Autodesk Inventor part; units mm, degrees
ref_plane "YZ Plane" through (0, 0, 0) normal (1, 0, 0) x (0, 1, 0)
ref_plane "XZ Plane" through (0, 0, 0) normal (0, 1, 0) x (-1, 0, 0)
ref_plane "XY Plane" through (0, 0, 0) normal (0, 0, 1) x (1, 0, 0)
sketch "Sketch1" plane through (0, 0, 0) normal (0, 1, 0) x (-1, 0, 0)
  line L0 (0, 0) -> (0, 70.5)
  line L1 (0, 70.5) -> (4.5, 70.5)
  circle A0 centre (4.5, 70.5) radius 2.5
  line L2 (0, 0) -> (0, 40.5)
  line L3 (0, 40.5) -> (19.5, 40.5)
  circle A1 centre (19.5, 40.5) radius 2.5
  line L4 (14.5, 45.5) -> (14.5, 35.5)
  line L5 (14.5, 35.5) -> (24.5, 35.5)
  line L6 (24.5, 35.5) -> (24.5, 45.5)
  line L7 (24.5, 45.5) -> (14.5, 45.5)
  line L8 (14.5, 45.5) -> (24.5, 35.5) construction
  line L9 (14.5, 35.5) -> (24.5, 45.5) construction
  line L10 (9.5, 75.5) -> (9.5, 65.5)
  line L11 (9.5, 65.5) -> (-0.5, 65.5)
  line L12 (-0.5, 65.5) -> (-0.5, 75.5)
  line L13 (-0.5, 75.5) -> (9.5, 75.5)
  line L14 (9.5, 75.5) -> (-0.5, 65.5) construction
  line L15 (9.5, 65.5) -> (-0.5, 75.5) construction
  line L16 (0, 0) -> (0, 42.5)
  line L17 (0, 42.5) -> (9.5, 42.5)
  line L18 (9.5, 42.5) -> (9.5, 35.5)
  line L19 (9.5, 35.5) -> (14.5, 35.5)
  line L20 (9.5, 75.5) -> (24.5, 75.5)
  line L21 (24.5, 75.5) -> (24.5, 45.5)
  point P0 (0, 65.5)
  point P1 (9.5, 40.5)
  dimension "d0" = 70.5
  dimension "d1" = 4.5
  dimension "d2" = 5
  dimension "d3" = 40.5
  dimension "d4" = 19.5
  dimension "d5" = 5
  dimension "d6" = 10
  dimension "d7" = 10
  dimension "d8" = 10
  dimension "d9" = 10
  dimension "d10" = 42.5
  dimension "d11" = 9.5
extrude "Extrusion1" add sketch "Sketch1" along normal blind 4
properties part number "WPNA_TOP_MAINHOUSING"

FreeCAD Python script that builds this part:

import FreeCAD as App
import Part
import Sketcher
from FreeCAD import Vector


def add_polygon(sketch, points):
    """Adds a closed chain of lines whose ends are joined by coincident constraints."""
    first, n = sketch.GeometryCount, len(points)
    for a, b in zip(points, points[1:] + points[:1]):
        sketch.addGeometry(Part.LineSegment(App.Vector(*a, 0), App.Vector(*b, 0)), False)
    for i in range(n):
        sketch.addConstraint(Sketcher.Constraint("Coincident", first + i, 2, first + (i + 1) % n, 1))

doc = App.newDocument("Part")
body = doc.addObject("PartDesign::Body", "Body")

sketch1 = body.newObject("Sketcher::SketchObject", "Sketch")
sketch1.AttachmentSupport = (doc.getObject("XZ_Plane"), [""])
sketch1.MapMode = "FlatFace"
add_polygon(sketch1, [(0, 40.5), (-9.5, 40.5), (-9.5, 35.5), (-24.5, 35.5), (-24.5, 75.5), (0.5, 75.5), (0.5, 65.5), (0, 65.5)])
sketch1.addGeometry(Part.Circle(Vector(-4.5, 70.5, 0), Vector(0, 0, 1), 2.5), False)
sketch1.addGeometry(Part.Circle(Vector(-19.5, 40.5, 0), Vector(0, 0, 1), 2.5), False)
sketch1.addConstraint([
    Sketcher.Constraint("Horizontal", 0),
    Sketcher.Constraint("Vertical", 1),
    Sketcher.Constraint("Horizontal", 2),
    Sketcher.Constraint("Vertical", 3),
    Sketcher.Constraint("Horizontal", 4),
    Sketcher.Constraint("Vertical", 5),
    Sketcher.Constraint("Horizontal", 6),
    Sketcher.Constraint("Vertical", 7),
    Sketcher.Constraint("Equal", 8, 9),
    Sketcher.Constraint("PointOnObject", 6, 2, -2),
    Sketcher.Constraint("Horizontal", 9, 3, 0, 2),
    Sketcher.Constraint("Equal", 4, 7),
    Sketcher.Constraint("Diameter", 8, 5.0),
    Sketcher.Constraint("DistanceY", 1, 2, 1, 1, 5.0),
    Sketcher.Constraint("DistanceY", 5, 2, 5, 1, 10.0),
    Sketcher.Constraint("DistanceX", 0, 2, 0, 1, 9.5),
    Sketcher.Constraint("DistanceX", 9, 3, 0, 2, 10.0),
    Sketcher.Constraint("DistanceX", 0, 2, 8, 3, 5.0),
    Sketcher.Constraint("DistanceX", 2, 2, 9, 3, 5.0),
    Sketcher.Constraint("DistanceY", 8, 3, 3, 2, 5.0),
    Sketcher.Constraint("DistanceX", 8, 3, 4, 2, 5.0),
    Sketcher.Constraint("DistanceY", -1, 1, 8, 3, 70.5),
])
pad1 = body.newObject("PartDesign::Pad", "Pad")
pad1.Profile = sketch1
pad1.Length = 4
pad1.Reversed = True

doc.recompute()
